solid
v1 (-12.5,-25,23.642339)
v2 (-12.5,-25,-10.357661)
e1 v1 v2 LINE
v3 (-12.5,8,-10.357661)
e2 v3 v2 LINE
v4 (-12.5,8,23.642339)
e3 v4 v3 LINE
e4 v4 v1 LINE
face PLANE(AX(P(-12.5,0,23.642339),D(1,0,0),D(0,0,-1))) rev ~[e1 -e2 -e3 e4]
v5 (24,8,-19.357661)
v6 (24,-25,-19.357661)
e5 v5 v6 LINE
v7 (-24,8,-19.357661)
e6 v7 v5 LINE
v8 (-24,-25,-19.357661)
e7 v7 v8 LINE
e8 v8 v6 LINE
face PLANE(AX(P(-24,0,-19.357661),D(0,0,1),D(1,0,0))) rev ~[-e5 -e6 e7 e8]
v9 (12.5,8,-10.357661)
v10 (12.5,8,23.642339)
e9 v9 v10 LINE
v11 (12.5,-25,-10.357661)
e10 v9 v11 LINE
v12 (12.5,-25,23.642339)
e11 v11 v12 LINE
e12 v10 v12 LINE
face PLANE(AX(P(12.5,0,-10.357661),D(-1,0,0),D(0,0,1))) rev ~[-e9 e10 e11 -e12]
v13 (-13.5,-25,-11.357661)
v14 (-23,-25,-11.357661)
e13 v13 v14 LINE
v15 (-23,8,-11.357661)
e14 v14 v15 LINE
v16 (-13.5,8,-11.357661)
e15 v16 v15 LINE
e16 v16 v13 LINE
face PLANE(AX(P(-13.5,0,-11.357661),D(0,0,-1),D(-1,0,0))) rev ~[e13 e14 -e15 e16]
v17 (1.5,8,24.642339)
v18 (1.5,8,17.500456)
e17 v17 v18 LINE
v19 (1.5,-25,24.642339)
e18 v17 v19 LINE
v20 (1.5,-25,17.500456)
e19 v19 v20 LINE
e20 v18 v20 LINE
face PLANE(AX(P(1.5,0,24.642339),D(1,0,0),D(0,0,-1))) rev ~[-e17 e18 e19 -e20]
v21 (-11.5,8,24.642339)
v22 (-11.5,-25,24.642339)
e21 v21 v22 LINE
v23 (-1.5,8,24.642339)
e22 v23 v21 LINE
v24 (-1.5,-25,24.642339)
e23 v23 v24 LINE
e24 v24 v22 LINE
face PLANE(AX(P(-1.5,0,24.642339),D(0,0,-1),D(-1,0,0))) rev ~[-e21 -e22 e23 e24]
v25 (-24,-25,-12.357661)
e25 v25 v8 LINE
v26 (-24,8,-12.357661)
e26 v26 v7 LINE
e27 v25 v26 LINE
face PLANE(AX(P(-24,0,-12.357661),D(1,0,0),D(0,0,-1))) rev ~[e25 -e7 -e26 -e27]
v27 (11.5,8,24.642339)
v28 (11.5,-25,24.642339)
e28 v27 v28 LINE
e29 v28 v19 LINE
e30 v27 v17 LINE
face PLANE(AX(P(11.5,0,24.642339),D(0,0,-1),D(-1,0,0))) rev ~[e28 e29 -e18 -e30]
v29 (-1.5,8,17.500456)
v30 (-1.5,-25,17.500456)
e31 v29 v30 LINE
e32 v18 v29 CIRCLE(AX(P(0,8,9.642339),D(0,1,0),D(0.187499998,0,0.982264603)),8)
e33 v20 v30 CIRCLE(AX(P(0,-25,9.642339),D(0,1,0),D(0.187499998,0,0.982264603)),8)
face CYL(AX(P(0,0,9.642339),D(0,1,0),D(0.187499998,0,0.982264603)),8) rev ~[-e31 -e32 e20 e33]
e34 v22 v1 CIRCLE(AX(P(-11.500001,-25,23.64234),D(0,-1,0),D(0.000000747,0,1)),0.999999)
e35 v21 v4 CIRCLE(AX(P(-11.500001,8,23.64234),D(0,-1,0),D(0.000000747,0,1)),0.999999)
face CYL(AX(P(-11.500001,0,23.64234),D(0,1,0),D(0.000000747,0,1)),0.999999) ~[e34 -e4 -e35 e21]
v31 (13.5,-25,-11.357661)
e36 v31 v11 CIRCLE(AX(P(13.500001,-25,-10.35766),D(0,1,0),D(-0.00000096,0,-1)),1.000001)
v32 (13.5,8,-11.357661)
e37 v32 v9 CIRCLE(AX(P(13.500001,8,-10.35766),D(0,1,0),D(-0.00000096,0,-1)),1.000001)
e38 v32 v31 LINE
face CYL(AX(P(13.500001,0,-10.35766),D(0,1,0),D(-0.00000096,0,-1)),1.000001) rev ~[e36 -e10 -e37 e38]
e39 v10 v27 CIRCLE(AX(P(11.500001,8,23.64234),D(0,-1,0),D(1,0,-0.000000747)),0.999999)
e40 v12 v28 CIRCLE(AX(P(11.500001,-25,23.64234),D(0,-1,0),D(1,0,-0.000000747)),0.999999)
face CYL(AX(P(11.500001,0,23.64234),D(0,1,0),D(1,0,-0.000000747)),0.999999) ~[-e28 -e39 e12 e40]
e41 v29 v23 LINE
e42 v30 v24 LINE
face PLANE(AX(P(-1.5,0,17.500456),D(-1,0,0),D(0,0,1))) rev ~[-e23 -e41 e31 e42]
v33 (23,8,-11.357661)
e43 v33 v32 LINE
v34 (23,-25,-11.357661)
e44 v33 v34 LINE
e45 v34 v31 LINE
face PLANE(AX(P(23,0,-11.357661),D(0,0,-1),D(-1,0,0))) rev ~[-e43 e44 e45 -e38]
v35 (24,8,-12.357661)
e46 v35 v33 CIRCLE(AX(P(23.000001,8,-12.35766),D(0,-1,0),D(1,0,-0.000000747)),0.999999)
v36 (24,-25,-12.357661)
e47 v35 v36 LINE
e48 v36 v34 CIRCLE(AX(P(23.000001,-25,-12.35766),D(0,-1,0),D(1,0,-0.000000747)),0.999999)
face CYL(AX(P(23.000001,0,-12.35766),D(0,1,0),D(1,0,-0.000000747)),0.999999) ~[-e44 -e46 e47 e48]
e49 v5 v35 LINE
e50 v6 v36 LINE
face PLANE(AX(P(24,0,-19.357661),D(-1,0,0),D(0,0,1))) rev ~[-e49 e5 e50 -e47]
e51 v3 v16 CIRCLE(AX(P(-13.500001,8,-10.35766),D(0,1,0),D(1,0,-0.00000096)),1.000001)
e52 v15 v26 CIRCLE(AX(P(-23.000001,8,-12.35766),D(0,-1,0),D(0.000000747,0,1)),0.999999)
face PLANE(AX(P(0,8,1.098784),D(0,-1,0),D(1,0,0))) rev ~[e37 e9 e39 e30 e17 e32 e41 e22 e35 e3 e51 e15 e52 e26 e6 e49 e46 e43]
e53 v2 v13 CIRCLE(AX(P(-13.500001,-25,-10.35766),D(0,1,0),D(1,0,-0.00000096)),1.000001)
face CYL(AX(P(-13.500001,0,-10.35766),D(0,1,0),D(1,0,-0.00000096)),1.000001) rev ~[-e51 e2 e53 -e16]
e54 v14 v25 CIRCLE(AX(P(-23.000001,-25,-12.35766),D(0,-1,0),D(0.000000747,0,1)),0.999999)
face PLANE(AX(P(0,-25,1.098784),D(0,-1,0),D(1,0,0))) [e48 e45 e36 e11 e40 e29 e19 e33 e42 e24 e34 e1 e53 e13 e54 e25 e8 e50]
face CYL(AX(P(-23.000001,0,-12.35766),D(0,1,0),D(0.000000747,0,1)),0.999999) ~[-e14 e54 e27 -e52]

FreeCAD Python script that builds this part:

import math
import FreeCAD as App
import Part
import Sketcher

V = App.Vector

doc = App.newDocument("Part")
body = doc.addObject("PartDesign::Body", "Body")

sketch1 = doc.addObject("Sketcher::SketchObject", "Sketch")
body.addObject(sketch1)
sketch1.AttachmentSupport = (doc.XZ_Plane, [""])
sketch1.MapMode = "FlatFace"
sketch1.addGeometry([
    Part.LineSegment(V(-24, -12.4, 0), V(-24, -19.4, 0)),
    Part.LineSegment(V(-24, -19.4, 0), V(24, -19.4, 0)),
    Part.LineSegment(V(24, -19.4, 0), V(24, -12.4, 0)),
    Part.ArcOfCircle(Part.Circle(V(23, -12.4, 0), V(0, 0, 1), 1), math.radians(0), math.radians(90)),
    Part.LineSegment(V(23, -11.4, 0), V(13.5, -11.4, 0)),
    Part.ArcOfCircle(Part.Circle(V(13.5, -10.4, 0), V(0, 0, 1), 1), math.radians(-180), math.radians(-90)),
    Part.LineSegment(V(12.5, -10.4, 0), V(12.5, 23.6, 0)),
    Part.ArcOfCircle(Part.Circle(V(11.5, 23.6, 0), V(0, 0, 1), 1), math.radians(0), math.radians(90)),
    Part.LineSegment(V(11.5, 24.6, 0), V(1.5, 24.6, 0)),
    Part.LineSegment(V(1.5, 24.6, 0), V(1.5, 17.5, 0)),
    Part.ArcOfCircle(Part.Circle(V(0, 9.6, 0), V(0, 0, 1), 8), math.radians(101), math.radians(439)),
    Part.LineSegment(V(-1.5, 17.5, 0), V(-1.5, 24.6, 0)),
    Part.LineSegment(V(-1.5, 24.6, 0), V(-11.5, 24.6, 0)),
    Part.ArcOfCircle(Part.Circle(V(-11.5, 23.6, 0), V(0, 0, 1), 1), math.radians(90), math.radians(180)),
    Part.LineSegment(V(-12.5, 23.6, 0), V(-12.5, -10.4, 0)),
    Part.ArcOfCircle(Part.Circle(V(-13.5, -10.4, 0), V(0, 0, 1), 1), math.radians(-90), math.radians(0)),
    Part.LineSegment(V(-13.5, -11.4, 0), V(-23, -11.4, 0)),
    Part.ArcOfCircle(Part.Circle(V(-23, -12.4, 0), V(0, 0, 1), 1), math.radians(90), math.radians(180)),
], False)
sketch1.addConstraint([
    Sketcher.Constraint("Coincident", 0, 2, 1, 1),
    Sketcher.Constraint("Coincident", 1, 2, 2, 1),
    Sketcher.Constraint("Tangent", 2, 2, 3, 1),
    Sketcher.Constraint("Tangent", 3, 2, 4, 1),
    Sketcher.Constraint("Tangent", 4, 2, 5, 2),
    Sketcher.Constraint("Tangent", 5, 1, 6, 1),
    Sketcher.Constraint("Tangent", 6, 2, 7, 1),
    Sketcher.Constraint("Tangent", 7, 2, 8, 1),
    Sketcher.Constraint("Coincident", 8, 2, 9, 1),
    Sketcher.Constraint("Coincident", 9, 2, 10, 2),
    Sketcher.Constraint("Coincident", 10, 1, 11, 1),
    Sketcher.Constraint("Coincident", 11, 2, 12, 1),
    Sketcher.Constraint("Tangent", 12, 2, 13, 1),
    Sketcher.Constraint("Tangent", 13, 2, 14, 1),
    Sketcher.Constraint("Tangent", 14, 2, 15, 2),
    Sketcher.Constraint("Tangent", 15, 1, 16, 1),
    Sketcher.Constraint("Tangent", 16, 2, 17, 1),
    Sketcher.Constraint("Tangent", 17, 2, 0, 1),
    Sketcher.Constraint("Vertical", 0),
    Sketcher.Constraint("Horizontal", 1),
    Sketcher.Constraint("Vertical", 2),
    Sketcher.Constraint("Horizontal", 4),
    Sketcher.Constraint("Vertical", 6),
    Sketcher.Constraint("Horizontal", 8),
    Sketcher.Constraint("Vertical", 9),
    Sketcher.Constraint("Vertical", 11),
    Sketcher.Constraint("Horizontal", 12),
    Sketcher.Constraint("Vertical", 14),
    Sketcher.Constraint("Horizontal", 16),
    Sketcher.Constraint("Equal", 3, 5),
    Sketcher.Constraint("Equal", 5, 7),
    Sketcher.Constraint("Equal", 7, 13),
    Sketcher.Constraint("Equal", 13, 15),
    Sketcher.Constraint("Equal", 15, 17),
    Sketcher.Constraint("Symmetric", 7, 3, 13, 3, -2),
    Sketcher.Constraint("Symmetric", 3, 3, 17, 3, -2),
    Sketcher.Constraint("Symmetric", 9, 2, 10, 1, -2),
    Sketcher.Constraint("Radius", 3, 0.999999),
    Sketcher.Constraint("Radius", 10, 8.0),
    Sketcher.Constraint("DistanceX", 1, 1, 1, 2, 48.0),
    Sketcher.Constraint("DistanceX", 8, 2, 8, 1, 10.0),
    Sketcher.Constraint("DistanceY", 0, 2, 0, 1, 7.0),
    Sketcher.Constraint("DistanceY", 6, 1, 6, 2, 34.0),
    Sketcher.Constraint("DistanceX", 4, 2, 4, 1, 9.5),
    Sketcher.Constraint("DistanceY", 10, 3, 7, 3, 14.000001),
    Sketcher.Constraint("DistanceY", 3, 3, -1, 1, 12.35766),
])
pad1 = doc.addObject("PartDesign::Pad", "Pad")
body.addObject(pad1)
pad1.Profile = sketch1
pad1.Length = 16
pad1.Midplane = True

sketch2 = doc.addObject("Sketcher::SketchObject", "Sketch001")
body.addObject(sketch2)
sketch2.AttachmentSupport = (doc.XZ_Plane, [""])
sketch2.MapMode = "FlatFace"
sketch2.addGeometry([
    Part.LineSegment(V(-24, -12.4, 0), V(-24, -19.4, 0)),
    Part.LineSegment(V(-24, -19.4, 0), V(24, -19.4, 0)),
    Part.LineSegment(V(24, -19.4, 0), V(24, -12.4, 0)),
    Part.ArcOfCircle(Part.Circle(V(23, -12.4, 0), V(0, 0, 1), 1), math.radians(0), math.radians(90)),
    Part.LineSegment(V(23, -11.4, 0), V(13.5, -11.4, 0)),
    Part.ArcOfCircle(Part.Circle(V(13.5, -10.4, 0), V(0, 0, 1), 1), math.radians(-180), math.radians(-90)),
    Part.LineSegment(V(12.5, -10.4, 0), V(12.5, 23.6, 0)),
    Part.ArcOfCircle(Part.Circle(V(11.5, 23.6, 0), V(0, 0, 1), 1), math.radians(0), math.radians(90)),
    Part.LineSegment(V(11.5, 24.6, 0), V(1.5, 24.6, 0)),
    Part.LineSegment(V(1.5, 24.6, 0), V(1.5, 17.5, 0)),
    Part.ArcOfCircle(Part.Circle(V(0, 9.6, 0), V(0, 0, 1), 8), math.radians(101), math.radians(439)),
    Part.LineSegment(V(-1.5, 17.5, 0), V(-1.5, 24.6, 0)),
    Part.LineSegment(V(-1.5, 24.6, 0), V(-11.5, 24.6, 0)),
    Part.ArcOfCircle(Part.Circle(V(-11.5, 23.6, 0), V(0, 0, 1), 1), math.radians(90), math.radians(180)),
    Part.LineSegment(V(-12.5, 23.6, 0), V(-12.5, -10.4, 0)),
    Part.ArcOfCircle(Part.Circle(V(-13.5, -10.4, 0), V(0, 0, 1), 1), math.radians(-90), math.radians(0)),
    Part.LineSegment(V(-13.5, -11.4, 0), V(-23, -11.4, 0)),
    Part.ArcOfCircle(Part.Circle(V(-23, -12.4, 0), V(0, 0, 1), 1), math.radians(90), math.radians(180)),
], False)
sketch2.addConstraint([
    Sketcher.Constraint("Coincident", 0, 2, 1, 1),
    Sketcher.Constraint("Coincident", 1, 2, 2, 1),
    Sketcher.Constraint("Tangent", 2, 2, 3, 1),
    Sketcher.Constraint("Tangent", 3, 2, 4, 1),
    Sketcher.Constraint("Tangent", 4, 2, 5, 2),
    Sketcher.Constraint("Tangent", 5, 1, 6, 1),
    Sketcher.Constraint("Tangent", 6, 2, 7, 1),
    Sketcher.Constraint("Tangent", 7, 2, 8, 1),
    Sketcher.Constraint("Coincident", 8, 2, 9, 1),
    Sketcher.Constraint("Coincident", 9, 2, 10, 2),
    Sketcher.Constraint("Coincident", 10, 1, 11, 1),
    Sketcher.Constraint("Coincident", 11, 2, 12, 1),
    Sketcher.Constraint("Tangent", 12, 2, 13, 1),
    Sketcher.Constraint("Tangent", 13, 2, 14, 1),
    Sketcher.Constraint("Tangent", 14, 2, 15, 2),
    Sketcher.Constraint("Tangent", 15, 1, 16, 1),
    Sketcher.Constraint("Tangent", 16, 2, 17, 1),
    Sketcher.Constraint("Tangent", 17, 2, 0, 1),
    Sketcher.Constraint("Vertical", 0),
    Sketcher.Constraint("Horizontal", 1),
    Sketcher.Constraint("Vertical", 2),
    Sketcher.Constraint("Horizontal", 4),
    Sketcher.Constraint("Vertical", 6),
    Sketcher.Constraint("Horizontal", 8),
    Sketcher.Constraint("Vertical", 9),
    Sketcher.Constraint("Vertical", 11),
    Sketcher.Constraint("Horizontal", 12),
    Sketcher.Constraint("Vertical", 14),
    Sketcher.Constraint("Horizontal", 16),
    Sketcher.Constraint("Equal", 3, 5),
    Sketcher.Constraint("Equal", 5, 7),
    Sketcher.Constraint("Equal", 7, 13),
    Sketcher.Constraint("Equal", 13, 15),
    Sketcher.Constraint("Equal", 15, 17),
    Sketcher.Constraint("Symmetric", 7, 3, 13, 3, -2),
    Sketcher.Constraint("Symmetric", 3, 3, 17, 3, -2),
    Sketcher.Constraint("Symmetric", 9, 2, 10, 1, -2),
    Sketcher.Constraint("Radius", 3, 0.999999),
    Sketcher.Constraint("Radius", 10, 8.0),
    Sketcher.Constraint("DistanceX", 1, 1, 1, 2, 48.0),
    Sketcher.Constraint("DistanceX", 8, 2, 8, 1, 10.0),
    Sketcher.Constraint("DistanceY", 0, 2, 0, 1, 7.0),
    Sketcher.Constraint("DistanceY", 6, 1, 6, 2, 34.0),
    Sketcher.Constraint("DistanceX", 4, 2, 4, 1, 9.5),
    Sketcher.Constraint("DistanceY", 10, 3, 7, 3, 14.000001),
    Sketcher.Constraint("DistanceY", 3, 3, -1, 1, 12.35766),
])
pad2 = doc.addObject("PartDesign::Pad", "Pad001")
body.addObject(pad2)
pad2.Profile = sketch2
pad2.Length = 25

doc.recompute()
